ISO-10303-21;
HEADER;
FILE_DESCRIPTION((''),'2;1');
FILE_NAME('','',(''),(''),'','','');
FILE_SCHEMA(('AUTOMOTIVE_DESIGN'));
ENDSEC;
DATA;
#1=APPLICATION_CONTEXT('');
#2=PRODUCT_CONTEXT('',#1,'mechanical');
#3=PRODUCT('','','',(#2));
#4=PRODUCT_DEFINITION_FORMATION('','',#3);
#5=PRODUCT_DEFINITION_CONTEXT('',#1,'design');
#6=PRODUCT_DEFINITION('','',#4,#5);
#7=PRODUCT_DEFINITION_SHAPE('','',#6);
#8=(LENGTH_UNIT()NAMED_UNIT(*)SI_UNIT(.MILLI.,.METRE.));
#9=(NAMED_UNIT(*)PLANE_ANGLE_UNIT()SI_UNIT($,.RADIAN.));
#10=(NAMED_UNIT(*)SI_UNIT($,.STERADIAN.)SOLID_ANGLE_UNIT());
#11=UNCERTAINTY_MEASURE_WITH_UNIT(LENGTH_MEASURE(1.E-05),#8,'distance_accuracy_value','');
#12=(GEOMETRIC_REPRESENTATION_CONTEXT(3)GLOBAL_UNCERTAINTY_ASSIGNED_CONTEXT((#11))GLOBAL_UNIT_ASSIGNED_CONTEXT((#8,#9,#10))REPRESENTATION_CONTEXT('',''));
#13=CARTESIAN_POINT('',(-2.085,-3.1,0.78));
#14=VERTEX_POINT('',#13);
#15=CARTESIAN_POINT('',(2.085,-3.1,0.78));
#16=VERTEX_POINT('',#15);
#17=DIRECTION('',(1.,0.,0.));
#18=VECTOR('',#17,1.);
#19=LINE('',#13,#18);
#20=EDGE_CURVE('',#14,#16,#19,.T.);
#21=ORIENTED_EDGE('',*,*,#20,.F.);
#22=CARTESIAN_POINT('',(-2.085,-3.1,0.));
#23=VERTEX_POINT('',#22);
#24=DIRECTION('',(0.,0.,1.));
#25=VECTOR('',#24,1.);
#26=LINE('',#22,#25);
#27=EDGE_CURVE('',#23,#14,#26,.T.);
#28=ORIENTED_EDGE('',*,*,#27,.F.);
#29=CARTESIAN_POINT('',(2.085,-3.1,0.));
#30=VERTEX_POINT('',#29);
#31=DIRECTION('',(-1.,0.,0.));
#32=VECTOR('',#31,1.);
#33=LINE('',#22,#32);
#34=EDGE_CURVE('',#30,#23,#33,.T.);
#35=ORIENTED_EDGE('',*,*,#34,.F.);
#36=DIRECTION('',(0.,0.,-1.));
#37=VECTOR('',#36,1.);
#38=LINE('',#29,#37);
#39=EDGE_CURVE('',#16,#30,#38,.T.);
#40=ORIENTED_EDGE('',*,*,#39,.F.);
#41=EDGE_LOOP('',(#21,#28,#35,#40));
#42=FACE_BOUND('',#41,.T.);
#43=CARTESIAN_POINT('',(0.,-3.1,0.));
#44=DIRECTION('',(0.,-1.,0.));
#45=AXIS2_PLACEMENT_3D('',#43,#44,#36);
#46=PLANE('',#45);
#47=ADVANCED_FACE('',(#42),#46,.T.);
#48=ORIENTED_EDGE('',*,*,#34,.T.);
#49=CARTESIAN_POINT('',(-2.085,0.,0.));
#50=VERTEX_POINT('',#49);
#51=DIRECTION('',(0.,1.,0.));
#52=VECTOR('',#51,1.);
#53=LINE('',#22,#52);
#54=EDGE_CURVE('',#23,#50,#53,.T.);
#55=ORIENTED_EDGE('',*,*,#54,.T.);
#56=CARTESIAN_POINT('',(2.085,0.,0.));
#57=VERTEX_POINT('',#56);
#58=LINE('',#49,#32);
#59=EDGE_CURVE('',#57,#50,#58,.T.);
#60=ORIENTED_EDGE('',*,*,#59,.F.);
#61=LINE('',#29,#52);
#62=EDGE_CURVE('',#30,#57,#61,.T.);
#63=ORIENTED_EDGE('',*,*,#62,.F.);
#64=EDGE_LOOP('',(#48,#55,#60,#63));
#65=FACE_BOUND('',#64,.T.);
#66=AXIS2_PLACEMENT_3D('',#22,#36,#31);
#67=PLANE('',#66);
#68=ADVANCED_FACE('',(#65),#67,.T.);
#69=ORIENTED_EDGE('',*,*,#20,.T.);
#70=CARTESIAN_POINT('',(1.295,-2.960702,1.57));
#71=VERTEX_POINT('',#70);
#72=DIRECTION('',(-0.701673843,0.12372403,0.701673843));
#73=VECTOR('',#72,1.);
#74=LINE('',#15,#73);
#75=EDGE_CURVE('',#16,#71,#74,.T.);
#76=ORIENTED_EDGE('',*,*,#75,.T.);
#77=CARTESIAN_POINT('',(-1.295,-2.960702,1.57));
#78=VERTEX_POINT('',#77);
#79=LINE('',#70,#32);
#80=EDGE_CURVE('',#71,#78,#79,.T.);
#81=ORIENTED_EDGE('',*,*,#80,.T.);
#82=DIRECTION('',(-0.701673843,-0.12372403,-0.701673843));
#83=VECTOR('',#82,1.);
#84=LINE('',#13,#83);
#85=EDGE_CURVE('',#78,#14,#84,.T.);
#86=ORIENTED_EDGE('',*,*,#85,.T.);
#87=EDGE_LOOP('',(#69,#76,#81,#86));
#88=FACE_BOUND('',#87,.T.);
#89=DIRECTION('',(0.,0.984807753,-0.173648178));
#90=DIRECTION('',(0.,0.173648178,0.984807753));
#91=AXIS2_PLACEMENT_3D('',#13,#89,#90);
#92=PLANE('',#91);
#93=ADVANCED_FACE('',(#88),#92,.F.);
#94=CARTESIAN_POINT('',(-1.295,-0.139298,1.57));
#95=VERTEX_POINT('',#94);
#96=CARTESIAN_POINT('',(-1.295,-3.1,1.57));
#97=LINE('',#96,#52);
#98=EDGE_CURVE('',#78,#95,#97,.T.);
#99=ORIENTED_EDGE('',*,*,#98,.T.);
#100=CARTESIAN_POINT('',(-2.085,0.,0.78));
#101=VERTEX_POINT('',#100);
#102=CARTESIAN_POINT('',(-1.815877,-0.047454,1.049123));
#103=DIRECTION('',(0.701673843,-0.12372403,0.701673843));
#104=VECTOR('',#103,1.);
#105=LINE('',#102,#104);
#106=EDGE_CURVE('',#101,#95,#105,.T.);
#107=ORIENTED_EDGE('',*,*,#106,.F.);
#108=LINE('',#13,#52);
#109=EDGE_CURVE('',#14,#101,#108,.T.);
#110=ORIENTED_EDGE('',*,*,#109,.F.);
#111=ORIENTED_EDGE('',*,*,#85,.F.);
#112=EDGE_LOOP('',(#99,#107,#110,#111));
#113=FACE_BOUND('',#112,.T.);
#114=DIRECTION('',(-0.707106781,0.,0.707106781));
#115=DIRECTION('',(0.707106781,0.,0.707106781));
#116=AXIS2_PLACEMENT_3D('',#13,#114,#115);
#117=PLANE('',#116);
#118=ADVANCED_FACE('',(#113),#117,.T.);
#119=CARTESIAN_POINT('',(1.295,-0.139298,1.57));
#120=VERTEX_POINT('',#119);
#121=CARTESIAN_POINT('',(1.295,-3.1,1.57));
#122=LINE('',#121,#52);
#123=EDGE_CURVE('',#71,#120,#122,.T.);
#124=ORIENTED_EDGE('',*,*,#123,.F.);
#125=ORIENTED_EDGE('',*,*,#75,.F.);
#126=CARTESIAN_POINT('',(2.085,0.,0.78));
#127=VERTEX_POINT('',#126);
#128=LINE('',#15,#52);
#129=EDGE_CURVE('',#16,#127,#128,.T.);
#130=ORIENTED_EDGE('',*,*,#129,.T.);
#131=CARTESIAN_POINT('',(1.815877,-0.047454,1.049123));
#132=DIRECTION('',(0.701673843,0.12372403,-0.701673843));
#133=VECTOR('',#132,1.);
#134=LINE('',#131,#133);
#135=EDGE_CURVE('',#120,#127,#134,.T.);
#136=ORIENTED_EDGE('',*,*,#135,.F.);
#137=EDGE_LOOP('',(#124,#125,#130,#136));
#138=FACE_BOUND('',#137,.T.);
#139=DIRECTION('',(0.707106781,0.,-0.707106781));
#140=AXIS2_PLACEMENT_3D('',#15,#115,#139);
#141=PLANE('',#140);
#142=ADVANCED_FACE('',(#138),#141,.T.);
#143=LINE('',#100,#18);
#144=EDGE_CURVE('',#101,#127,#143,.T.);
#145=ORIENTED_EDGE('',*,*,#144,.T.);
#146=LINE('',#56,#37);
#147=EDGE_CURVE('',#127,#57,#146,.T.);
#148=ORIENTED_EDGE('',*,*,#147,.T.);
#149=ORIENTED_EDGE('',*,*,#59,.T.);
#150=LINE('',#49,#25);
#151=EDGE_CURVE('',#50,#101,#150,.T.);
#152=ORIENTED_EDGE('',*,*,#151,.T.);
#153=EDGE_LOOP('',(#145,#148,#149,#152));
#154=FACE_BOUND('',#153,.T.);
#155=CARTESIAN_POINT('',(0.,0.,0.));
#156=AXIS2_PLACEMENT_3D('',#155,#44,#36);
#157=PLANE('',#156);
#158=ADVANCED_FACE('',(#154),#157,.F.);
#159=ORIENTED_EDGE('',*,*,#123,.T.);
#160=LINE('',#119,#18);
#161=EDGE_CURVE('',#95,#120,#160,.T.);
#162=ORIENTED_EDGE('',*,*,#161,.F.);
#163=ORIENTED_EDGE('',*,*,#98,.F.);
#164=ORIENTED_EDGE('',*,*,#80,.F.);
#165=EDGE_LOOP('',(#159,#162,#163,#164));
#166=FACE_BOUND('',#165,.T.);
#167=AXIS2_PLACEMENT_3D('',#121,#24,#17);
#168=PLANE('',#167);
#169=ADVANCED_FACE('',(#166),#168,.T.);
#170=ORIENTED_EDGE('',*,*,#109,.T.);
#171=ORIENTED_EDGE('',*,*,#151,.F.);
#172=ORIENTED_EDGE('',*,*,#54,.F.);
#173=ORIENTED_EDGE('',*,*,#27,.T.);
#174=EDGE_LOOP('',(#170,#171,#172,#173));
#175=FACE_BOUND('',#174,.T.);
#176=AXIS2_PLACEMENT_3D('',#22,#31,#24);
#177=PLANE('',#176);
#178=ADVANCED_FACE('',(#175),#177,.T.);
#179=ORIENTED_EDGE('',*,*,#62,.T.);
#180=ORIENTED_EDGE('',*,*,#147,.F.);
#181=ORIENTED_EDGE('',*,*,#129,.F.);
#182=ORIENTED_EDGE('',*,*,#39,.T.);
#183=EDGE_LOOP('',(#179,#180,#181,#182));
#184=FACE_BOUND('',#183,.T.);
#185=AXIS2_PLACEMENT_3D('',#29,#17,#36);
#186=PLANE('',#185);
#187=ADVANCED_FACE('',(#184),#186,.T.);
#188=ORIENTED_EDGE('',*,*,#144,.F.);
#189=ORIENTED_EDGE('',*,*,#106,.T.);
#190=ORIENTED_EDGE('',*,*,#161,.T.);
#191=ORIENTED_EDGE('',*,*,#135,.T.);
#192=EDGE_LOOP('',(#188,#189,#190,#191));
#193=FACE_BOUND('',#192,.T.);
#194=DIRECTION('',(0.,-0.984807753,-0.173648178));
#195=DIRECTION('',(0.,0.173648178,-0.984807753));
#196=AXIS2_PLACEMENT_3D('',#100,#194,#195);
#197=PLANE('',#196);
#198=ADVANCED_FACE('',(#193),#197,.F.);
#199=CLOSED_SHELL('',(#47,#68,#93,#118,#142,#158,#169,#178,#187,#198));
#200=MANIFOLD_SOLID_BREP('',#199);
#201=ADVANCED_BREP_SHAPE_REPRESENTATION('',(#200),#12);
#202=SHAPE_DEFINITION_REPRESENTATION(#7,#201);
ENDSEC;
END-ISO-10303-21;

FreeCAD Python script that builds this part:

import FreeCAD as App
import Part
import Sketcher
from FreeCAD import Vector
Q = App.Units.Quantity


def add_polygon(sketch, points):
    """Adds a closed chain of lines whose ends are joined by coincident constraints."""
    first, n = sketch.GeometryCount, len(points)
    for a, b in zip(points, points[1:] + points[:1]):
        sketch.addGeometry(Part.LineSegment(App.Vector(*a, 0), App.Vector(*b, 0)), False)
    for i in range(n):
        sketch.addConstraint(Sketcher.Constraint("Coincident", first + i, 2, first + (i + 1) % n, 1))

doc = App.newDocument("Part")
body = doc.addObject("PartDesign::Body", "Body")

sketch1 = body.newObject("Sketcher::SketchObject", "Sketch")
sketch1.AttachmentSupport = (doc.getObject("XZ_Plane"), [""])
sketch1.MapMode = "FlatFace"
add_polygon(sketch1, [(2.085, 0), (-2.085, 0), (-2.085, 0.78), (-1.295, 1.57), (1.295, 1.57), (2.085, 0.78)])
sketch1.addConstraint([
    Sketcher.Constraint("Horizontal", 0),
    Sketcher.Constraint("Vertical", 1),
    Sketcher.Constraint("Horizontal", 3),
    Sketcher.Constraint("Vertical", 5),
    Sketcher.Constraint("Symmetric", 0, 2, 5, 2, -1, 1),
    Sketcher.Constraint("Perpendicular", 2, 4),
    Sketcher.Constraint("Horizontal", 1, 2, 4, 2),
    Sketcher.Constraint("Equal", 2, 4),
    Sketcher.Constraint("DistanceX", 0, 2, 0, 1, 4.17),
    Sketcher.Constraint("DistanceX", 3, 1, 3, 2, 2.59),
    Sketcher.Constraint("DistanceY", 1, 1, 1, 2, 0.78),
])
pad1 = body.newObject("PartDesign::Pad", "Pad")
pad1.Profile = sketch1
pad1.Length = 3.1

sketch2 = body.newObject("Sketcher::SketchObject", "Sketch001")
sketch2.AttachmentSupport = (doc.getObject("YZ_Plane"), [""])
sketch2.MapMode = "FlatFace"
sketch2.AttachmentOffset = App.Placement(Vector(0, 0, 2.085), App.Rotation())
add_polygon(sketch2, [(-0.344712, 2.73496), (0, 0.78), (0, 2.73496)])
add_polygon(sketch2, [(-3.1, 0.78), (-2.782196, 2.582358), (-3.1, 2.582358)])
sketch2.addConstraint([
    Sketcher.Constraint("Vertical", 1),
    Sketcher.Constraint("Horizontal", 2),
    Sketcher.Constraint("Horizontal", 4),
    Sketcher.Constraint("Vertical", 5),
    Sketcher.Constraint("PointOnObject", 0, 2, -2),
    Sketcher.Constraint("Horizontal", 0, 2, 5, 2),
    Sketcher.Constraint("Angle", 0, Q("-80 deg")),
    Sketcher.Constraint("Angle", 3, Q("80 deg")),
    Sketcher.Constraint("DistanceX", 4, 2, -1, 1, 3.1),
    Sketcher.Constraint("DistanceY", -1, 1, 0, 2, 0.78),
    Sketcher.Constraint("DistanceY", 1, 1, 1, 2, 1.95496),
    Sketcher.Constraint("DistanceX", 4, 2, 4, 1, 0.317804),
])
pocket1 = body.newObject("PartDesign::Pocket", "Pocket")
pocket1.Profile = sketch2
pocket1.Type = "ThroughAll"

doc.recompute()
